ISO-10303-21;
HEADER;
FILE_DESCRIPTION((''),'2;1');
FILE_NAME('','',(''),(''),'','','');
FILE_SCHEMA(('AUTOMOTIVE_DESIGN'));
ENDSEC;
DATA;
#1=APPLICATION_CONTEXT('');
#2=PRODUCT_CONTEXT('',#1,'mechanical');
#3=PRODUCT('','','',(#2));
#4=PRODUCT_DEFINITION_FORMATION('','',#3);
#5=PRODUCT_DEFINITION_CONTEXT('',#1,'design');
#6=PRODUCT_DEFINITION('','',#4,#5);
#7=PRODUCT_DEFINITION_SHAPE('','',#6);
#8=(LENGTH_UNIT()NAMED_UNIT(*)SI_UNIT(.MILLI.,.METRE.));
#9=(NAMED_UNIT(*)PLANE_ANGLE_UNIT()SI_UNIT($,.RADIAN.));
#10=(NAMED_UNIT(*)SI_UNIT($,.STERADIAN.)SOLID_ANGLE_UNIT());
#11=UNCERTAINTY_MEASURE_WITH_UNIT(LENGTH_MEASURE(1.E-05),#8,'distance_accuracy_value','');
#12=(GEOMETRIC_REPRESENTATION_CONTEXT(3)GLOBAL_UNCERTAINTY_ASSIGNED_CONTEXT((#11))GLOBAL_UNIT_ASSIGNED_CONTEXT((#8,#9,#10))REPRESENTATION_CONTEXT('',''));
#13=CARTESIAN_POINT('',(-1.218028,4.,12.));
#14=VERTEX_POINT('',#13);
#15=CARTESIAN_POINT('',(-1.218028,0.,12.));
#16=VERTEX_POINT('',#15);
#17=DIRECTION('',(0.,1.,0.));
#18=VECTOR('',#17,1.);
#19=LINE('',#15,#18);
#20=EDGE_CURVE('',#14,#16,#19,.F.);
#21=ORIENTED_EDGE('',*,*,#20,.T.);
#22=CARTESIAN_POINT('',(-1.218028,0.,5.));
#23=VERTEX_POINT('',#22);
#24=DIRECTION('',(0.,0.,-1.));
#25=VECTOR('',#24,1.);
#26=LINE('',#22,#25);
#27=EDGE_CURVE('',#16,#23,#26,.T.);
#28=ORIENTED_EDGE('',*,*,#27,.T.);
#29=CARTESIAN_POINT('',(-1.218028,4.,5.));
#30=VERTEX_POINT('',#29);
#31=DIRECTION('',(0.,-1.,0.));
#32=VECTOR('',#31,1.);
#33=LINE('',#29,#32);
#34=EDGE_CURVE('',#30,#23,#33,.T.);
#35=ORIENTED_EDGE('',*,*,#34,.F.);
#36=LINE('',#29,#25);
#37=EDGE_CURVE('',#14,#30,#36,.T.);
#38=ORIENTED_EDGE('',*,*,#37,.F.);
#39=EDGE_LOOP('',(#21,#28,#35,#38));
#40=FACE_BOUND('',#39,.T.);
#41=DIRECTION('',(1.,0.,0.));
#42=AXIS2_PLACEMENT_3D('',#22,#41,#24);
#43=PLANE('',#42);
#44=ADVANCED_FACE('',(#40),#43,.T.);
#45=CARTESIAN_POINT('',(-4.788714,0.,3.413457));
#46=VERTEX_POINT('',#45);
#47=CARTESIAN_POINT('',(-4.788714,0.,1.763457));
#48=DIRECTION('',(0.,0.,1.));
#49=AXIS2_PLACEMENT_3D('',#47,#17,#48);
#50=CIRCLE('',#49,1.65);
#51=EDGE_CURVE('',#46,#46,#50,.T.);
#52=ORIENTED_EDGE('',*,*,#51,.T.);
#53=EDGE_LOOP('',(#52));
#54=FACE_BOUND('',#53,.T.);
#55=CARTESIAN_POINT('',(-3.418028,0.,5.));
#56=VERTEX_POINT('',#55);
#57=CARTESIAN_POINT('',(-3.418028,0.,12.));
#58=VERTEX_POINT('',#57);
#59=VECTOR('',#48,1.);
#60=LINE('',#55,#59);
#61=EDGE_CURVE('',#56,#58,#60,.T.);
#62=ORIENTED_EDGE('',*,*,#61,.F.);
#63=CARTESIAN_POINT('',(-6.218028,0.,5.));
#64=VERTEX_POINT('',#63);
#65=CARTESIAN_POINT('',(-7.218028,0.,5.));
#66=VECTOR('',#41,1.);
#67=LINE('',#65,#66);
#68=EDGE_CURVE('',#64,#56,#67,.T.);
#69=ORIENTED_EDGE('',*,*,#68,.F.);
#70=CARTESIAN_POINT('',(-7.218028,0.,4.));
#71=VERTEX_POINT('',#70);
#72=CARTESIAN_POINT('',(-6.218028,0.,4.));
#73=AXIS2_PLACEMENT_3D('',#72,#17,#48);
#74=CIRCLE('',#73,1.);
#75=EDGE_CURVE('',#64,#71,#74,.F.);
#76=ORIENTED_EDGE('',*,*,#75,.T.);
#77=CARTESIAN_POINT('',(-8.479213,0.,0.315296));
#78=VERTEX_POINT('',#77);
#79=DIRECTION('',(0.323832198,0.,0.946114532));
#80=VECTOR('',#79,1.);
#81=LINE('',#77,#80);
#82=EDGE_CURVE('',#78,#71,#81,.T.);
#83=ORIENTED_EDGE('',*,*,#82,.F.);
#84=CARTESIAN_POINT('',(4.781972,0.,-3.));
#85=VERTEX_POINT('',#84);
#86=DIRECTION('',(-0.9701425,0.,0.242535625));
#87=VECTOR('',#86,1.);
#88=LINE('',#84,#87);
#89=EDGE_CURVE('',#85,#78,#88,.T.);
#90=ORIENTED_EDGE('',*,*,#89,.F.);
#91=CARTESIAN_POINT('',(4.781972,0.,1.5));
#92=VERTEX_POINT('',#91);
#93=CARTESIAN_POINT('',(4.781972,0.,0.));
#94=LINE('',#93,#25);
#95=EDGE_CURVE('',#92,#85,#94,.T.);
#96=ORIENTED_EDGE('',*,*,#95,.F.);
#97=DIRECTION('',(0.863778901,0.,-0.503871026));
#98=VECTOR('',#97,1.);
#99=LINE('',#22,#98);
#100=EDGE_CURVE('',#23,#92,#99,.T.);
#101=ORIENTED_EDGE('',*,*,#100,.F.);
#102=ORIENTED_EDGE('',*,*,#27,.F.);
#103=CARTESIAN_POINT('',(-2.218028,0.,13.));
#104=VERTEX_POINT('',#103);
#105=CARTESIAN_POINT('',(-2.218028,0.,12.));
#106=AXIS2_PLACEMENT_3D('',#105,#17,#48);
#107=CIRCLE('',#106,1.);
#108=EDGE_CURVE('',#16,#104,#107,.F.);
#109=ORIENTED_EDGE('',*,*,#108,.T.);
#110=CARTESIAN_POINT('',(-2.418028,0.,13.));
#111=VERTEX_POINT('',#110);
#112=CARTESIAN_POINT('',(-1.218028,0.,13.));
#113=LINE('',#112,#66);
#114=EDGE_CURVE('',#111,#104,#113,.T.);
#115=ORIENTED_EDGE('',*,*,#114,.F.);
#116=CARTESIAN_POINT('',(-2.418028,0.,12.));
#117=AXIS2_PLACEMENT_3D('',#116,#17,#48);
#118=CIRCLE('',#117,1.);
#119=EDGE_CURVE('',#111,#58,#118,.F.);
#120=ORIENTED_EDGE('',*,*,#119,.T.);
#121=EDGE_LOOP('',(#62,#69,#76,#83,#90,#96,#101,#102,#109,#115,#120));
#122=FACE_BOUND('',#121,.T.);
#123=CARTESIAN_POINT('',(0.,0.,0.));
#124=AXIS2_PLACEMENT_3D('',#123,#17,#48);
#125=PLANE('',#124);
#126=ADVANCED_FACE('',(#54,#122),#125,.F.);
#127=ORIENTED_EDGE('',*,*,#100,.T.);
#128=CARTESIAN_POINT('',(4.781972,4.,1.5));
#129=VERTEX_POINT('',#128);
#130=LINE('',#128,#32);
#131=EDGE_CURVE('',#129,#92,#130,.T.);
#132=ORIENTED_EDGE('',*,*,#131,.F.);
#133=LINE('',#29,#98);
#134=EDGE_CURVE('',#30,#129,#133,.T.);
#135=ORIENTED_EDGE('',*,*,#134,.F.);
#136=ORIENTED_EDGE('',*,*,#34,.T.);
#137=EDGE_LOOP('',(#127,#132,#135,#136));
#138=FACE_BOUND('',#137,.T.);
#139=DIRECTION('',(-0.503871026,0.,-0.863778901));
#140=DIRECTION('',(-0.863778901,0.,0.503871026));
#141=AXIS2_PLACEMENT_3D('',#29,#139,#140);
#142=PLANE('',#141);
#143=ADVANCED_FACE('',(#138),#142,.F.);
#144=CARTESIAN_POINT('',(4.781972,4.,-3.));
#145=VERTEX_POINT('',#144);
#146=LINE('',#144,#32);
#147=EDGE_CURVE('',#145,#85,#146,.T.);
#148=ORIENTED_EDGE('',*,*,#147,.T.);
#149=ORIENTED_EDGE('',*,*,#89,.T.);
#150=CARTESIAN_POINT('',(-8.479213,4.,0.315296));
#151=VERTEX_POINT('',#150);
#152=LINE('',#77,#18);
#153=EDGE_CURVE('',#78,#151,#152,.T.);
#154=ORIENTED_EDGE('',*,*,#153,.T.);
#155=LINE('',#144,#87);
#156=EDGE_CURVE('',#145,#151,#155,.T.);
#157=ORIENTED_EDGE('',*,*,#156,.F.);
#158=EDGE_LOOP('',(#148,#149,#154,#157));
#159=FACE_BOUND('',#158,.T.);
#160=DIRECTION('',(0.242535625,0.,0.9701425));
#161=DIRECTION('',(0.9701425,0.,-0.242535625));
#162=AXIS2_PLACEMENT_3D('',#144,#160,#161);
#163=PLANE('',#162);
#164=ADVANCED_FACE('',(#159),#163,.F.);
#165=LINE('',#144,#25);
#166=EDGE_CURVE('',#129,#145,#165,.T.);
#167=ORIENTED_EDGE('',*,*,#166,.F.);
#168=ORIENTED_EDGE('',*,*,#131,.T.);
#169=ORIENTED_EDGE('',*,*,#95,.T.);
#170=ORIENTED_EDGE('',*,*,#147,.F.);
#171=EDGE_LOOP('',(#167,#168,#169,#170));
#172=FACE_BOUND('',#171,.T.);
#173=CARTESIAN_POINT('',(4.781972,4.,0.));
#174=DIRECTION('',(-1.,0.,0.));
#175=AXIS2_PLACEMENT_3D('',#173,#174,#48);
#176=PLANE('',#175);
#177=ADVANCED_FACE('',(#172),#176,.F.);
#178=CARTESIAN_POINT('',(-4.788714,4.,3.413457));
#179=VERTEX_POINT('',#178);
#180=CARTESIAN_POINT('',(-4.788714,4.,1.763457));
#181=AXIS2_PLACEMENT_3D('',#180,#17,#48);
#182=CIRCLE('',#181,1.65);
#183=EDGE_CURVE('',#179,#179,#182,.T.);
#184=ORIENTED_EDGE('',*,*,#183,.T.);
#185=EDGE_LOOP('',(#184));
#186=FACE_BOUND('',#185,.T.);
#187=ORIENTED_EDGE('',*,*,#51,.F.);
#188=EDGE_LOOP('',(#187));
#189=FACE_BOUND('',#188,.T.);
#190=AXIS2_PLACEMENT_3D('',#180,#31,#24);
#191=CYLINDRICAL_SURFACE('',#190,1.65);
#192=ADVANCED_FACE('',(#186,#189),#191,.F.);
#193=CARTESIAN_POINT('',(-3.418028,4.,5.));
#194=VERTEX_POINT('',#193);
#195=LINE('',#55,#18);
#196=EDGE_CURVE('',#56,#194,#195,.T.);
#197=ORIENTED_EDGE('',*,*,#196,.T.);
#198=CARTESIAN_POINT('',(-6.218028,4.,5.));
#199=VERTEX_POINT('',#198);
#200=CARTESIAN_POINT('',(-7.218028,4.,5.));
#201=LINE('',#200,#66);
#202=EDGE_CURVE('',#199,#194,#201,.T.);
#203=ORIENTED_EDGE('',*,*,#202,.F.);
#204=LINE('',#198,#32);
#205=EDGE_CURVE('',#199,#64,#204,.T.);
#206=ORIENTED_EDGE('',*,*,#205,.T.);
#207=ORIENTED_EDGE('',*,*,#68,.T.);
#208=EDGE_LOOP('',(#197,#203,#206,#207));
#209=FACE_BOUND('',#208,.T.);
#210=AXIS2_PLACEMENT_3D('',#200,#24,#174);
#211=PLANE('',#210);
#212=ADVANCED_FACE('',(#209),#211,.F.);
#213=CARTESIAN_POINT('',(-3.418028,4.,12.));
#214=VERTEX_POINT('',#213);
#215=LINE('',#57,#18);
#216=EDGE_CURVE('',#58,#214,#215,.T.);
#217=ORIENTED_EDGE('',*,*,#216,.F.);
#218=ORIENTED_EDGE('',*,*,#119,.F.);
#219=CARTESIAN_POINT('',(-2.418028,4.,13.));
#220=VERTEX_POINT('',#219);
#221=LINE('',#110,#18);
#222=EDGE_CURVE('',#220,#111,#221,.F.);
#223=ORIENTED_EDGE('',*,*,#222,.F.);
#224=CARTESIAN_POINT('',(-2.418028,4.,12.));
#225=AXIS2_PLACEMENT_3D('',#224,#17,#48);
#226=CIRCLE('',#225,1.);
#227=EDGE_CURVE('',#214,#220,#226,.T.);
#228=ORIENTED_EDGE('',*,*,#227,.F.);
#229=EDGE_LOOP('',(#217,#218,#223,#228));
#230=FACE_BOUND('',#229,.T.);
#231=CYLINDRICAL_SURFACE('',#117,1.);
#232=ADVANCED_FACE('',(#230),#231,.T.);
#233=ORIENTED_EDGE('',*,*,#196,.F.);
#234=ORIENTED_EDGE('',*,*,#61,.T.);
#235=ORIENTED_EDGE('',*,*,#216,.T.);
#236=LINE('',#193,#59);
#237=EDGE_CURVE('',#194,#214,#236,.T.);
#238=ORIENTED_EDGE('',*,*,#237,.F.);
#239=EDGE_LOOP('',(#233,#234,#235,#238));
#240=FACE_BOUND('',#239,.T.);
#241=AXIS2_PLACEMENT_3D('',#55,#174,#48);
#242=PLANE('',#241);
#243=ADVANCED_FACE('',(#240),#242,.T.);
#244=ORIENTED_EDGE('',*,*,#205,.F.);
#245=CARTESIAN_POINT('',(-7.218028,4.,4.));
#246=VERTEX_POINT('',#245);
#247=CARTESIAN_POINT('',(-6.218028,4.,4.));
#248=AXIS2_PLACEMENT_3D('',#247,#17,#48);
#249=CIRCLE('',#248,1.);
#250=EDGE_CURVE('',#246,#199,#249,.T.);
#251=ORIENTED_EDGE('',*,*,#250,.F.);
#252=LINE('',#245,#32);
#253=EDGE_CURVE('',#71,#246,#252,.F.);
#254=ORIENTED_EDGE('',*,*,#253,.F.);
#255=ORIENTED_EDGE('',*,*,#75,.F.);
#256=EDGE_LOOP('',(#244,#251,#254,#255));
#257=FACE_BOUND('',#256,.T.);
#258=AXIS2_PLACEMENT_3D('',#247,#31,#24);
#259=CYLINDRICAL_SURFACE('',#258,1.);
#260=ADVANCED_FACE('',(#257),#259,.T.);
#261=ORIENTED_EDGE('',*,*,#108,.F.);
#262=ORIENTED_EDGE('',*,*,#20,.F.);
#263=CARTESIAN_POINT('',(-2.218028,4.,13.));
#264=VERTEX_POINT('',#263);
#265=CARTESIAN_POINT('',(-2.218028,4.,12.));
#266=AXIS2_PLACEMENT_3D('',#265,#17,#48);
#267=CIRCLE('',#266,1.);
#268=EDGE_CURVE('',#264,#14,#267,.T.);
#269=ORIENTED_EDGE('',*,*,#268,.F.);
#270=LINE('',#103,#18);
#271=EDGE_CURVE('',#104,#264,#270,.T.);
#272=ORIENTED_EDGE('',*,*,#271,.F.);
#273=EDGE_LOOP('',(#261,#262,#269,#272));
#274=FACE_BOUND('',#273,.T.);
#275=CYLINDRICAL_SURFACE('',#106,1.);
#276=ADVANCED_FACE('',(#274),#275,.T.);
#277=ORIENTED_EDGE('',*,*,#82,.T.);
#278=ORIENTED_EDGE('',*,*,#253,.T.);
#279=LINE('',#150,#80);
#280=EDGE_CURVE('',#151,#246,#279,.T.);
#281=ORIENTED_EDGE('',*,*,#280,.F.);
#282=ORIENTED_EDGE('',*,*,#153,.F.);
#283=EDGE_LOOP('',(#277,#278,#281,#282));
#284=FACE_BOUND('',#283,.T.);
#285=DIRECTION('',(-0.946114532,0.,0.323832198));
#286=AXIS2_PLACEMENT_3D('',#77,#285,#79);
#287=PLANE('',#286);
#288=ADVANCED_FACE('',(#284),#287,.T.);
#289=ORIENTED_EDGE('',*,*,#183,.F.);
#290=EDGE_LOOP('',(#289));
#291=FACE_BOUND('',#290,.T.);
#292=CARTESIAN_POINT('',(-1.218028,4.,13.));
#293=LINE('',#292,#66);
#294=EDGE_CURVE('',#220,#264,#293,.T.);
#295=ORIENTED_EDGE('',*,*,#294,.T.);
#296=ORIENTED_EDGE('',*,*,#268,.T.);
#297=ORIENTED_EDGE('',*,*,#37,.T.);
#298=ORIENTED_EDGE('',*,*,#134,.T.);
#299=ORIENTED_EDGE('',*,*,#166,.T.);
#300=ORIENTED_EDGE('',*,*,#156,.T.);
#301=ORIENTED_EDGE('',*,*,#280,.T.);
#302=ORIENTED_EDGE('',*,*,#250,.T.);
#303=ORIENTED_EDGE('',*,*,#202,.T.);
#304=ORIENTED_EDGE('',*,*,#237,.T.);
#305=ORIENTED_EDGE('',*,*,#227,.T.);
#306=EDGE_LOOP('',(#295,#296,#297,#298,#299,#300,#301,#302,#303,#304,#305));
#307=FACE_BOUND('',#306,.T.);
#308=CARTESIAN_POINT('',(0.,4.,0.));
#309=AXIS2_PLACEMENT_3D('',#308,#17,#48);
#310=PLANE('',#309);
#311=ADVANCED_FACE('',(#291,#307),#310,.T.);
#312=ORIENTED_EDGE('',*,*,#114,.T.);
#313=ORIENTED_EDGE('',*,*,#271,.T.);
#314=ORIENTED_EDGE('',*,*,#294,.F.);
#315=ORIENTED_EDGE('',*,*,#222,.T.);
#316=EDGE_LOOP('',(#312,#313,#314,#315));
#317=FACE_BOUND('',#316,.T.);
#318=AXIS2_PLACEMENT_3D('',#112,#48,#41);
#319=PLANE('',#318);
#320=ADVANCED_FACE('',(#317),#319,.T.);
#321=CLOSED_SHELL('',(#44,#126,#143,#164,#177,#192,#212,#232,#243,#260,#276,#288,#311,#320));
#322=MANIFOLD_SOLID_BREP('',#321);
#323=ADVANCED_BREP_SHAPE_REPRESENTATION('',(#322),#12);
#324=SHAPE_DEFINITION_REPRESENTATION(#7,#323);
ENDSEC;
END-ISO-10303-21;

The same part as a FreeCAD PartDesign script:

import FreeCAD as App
import Part
import Sketcher
Q = App.Units.Quantity


def edges_at(feature, points):
    """Names of the edges that pass closest to the given points."""
    edges = feature.Shape.Edges
    near = lambda p: min(range(len(edges)), key=lambda i: edges[i].distToShape(Part.Vertex(*p))[0])
    return sorted({f"Edge{near(p) + 1}" for p in points})

doc = App.newDocument("Part")
body = doc.addObject("PartDesign::Body", "Body")

# Sketch on XZ plane
sketch1 = body.newObject("Sketcher::SketchObject", "Sketch")
sketch1.AttachmentSupport = (doc.getObject("XZ_Plane"), [""])
sketch1.MapMode = "FlatFace"
sketch1.addGeometry(Part.LineSegment(App.Vector(4.8, -3, 0), App.Vector(-7.2, 0, 0)), False)
sketch1.addGeometry(Part.LineSegment(App.Vector(-7.2, 0, 0), App.Vector(-7.2, 5, 0)), False)
sketch1.addGeometry(Part.LineSegment(App.Vector(-7.2, 5, 0), App.Vector(-1.2, 5, 0)), False)
sketch1.addGeometry(Part.LineSegment(App.Vector(-1.2, 5, 0), App.Vector(4.8, 1.5, 0)), False)
sketch1.addGeometry(Part.LineSegment(App.Vector(4.8, 1.5, 0), App.Vector(4.8, -3, 0)), False)
sketch1.addGeometry(Part.Circle(App.Vector(-4.8, 1.8, 0), App.Vector(0, 0, 1), 1.6), False)
sketch1.addConstraint(Sketcher.Constraint("Coincident", 0, 2, 1, 1))
sketch1.addConstraint(Sketcher.Constraint("Coincident", 1, 2, 2, 1))
sketch1.addConstraint(Sketcher.Constraint("Coincident", 2, 2, 3, 1))
sketch1.addConstraint(Sketcher.Constraint("Coincident", 3, 2, 4, 1))
sketch1.addConstraint(Sketcher.Constraint("Coincident", 4, 2, 0, 1))
sketch1.addConstraint(Sketcher.Constraint("Vertical", 1))
sketch1.addConstraint(Sketcher.Constraint("Horizontal", 2))
sketch1.addConstraint(Sketcher.Constraint("Vertical", 4))
sketch1.addConstraint(Sketcher.Constraint("PointOnObject", 0, 2, -1))
sketch1.addConstraint(Sketcher.Constraint("Diameter", 5, Q("3.3 mm")))
sketch1.addConstraint(Sketcher.Constraint("DistanceX", 2, 1, 2, 2, Q("6 mm")))
sketch1.addConstraint(Sketcher.Constraint("DistanceY", 1, 1, 1, 2, Q("5 mm")))
sketch1.addConstraint(Sketcher.Constraint("DistanceY", 4, 2, 4, 1, Q("4.5 mm")))
sketch1.addConstraint(Sketcher.Constraint("DistanceY", 4, 2, -1, 1, Q("3 mm")))
sketch1.addConstraint(Sketcher.Constraint("DistanceX", 2, 2, 3, 2, Q("6 mm")))
sketch1.addConstraint(Sketcher.Constraint("DistanceX", 5, 3, -1, 1, Q("4.788714 mm")))
sketch1.addConstraint(Sketcher.Constraint("DistanceY", -1, 1, 5, 3, Q("1.763457 mm")))
sketch1.addConstraint(Sketcher.Constraint("DistanceX", 0, 2, -1, 1, Q("7.218028 mm")))
pad1 = body.newObject("PartDesign::Pad", "Pad")
pad1.Profile = sketch1
pad1.Length = 4
pad1.Reversed = True

# Sketch on XZ plane
sketch2 = body.newObject("Sketcher::SketchObject", "Sketch001")
sketch2.AttachmentSupport = (doc.getObject("XZ_Plane"), [""])
sketch2.MapMode = "FlatFace"
sketch2.AttachmentOffset = App.Placement(App.Vector(0, 0, -4), App.Rotation())
sketch2.addGeometry(Part.LineSegment(App.Vector(-3.4, 5, 0), App.Vector(-3.4, 13, 0)), False)
sketch2.addGeometry(Part.LineSegment(App.Vector(-3.4, 13, 0), App.Vector(-1.2, 13, 0)), False)
sketch2.addGeometry(Part.LineSegment(App.Vector(-1.2, 13, 0), App.Vector(-1.2, 5, 0)), False)
sketch2.addGeometry(Part.LineSegment(App.Vector(-1.2, 5, 0), App.Vector(-3.4, 5, 0)), False)
sketch2.addConstraint(Sketcher.Constraint("Coincident", 0, 2, 1, 1))
sketch2.addConstraint(Sketcher.Constraint("Coincident", 1, 2, 2, 1))
sketch2.addConstraint(Sketcher.Constraint("Coincident", 2, 2, 3, 1))
sketch2.addConstraint(Sketcher.Constraint("Coincident", 3, 2, 0, 1))
sketch2.addConstraint(Sketcher.Constraint("Vertical", 0))
sketch2.addConstraint(Sketcher.Constraint("Horizontal", 1))
sketch2.addConstraint(Sketcher.Constraint("Vertical", 2))
sketch2.addConstraint(Sketcher.Constraint("Horizontal", 3))
sketch2.addConstraint(Sketcher.Constraint("DistanceY", 0, 1, 0, 2, Q("8 mm")))
sketch2.addConstraint(Sketcher.Constraint("DistanceX", 1, 1, 1, 2, Q("2.2 mm")))
sketch2.addConstraint(Sketcher.Constraint("DistanceY", -1, 1, 0, 2, Q("13 mm")))
sketch2.addConstraint(Sketcher.Constraint("DistanceX", 0, 2, -1, 1, Q("3.418028 mm")))
pad2 = body.newObject("PartDesign::Pad", "Pad001")
pad2.Profile = sketch2
pad2.Length = 4
doc.recompute()

fillet = body.newObject("PartDesign::Fillet", "Fillet")
fillet.Base = (pad2, edges_at(pad2, [(-1.218, 2, 13), (-3.418, 2, 13)]))
fillet.Radius = 1
doc.recompute()

fillet2 = body.newObject("PartDesign::Fillet", "Fillet001")
fillet2.Base = (fillet, edges_at(fillet, [(-7.218, 2, 5)]))
fillet2.Radius = 1

# Sketch on XZ plane
sketch3 = body.newObject("Sketcher::SketchObject", "Sketch002")
sketch3.AttachmentSupport = (doc.getObject("XZ_Plane"), [""])
sketch3.MapMode = "FlatFace"
sketch3.AttachmentOffset = App.Placement(App.Vector(0, 0, -4), App.Rotation())
sketch3.addGeometry(Part.LineSegment(App.Vector(-7.2, 0, 0), App.Vector(-8.5, 0.3, 0)), False)
sketch3.addGeometry(Part.LineSegment(App.Vector(-8.5, 0.3, 0), App.Vector(-7.2, 4, 0)), False)
sketch3.addGeometry(Part.LineSegment(App.Vector(-7.2, 4, 0), App.Vector(-7.2, 0, 0)), False)
sketch3.addConstraint(Sketcher.Constraint("Coincident", 0, 2, 1, 1))
sketch3.addConstraint(Sketcher.Constraint("Coincident", 1, 2, 2, 1))
sketch3.addConstraint(Sketcher.Constraint("Coincident", 2, 2, 0, 1))
sketch3.addConstraint(Sketcher.Constraint("Vertical", 2))
sketch3.addConstraint(Sketcher.Constraint("PointOnObject", 2, 2, -1))
sketch3.addConstraint(Sketcher.Constraint("DistanceY", 2, 2, 2, 1, Q("4 mm")))
sketch3.addConstraint(Sketcher.Constraint("Distance", 0, Q("1.3 mm")))
sketch3.addConstraint(Sketcher.Constraint("Distance", 1, Q("3.894564 mm")))
sketch3.addConstraint(Sketcher.Constraint("DistanceX", 0, 2, -1, 1, Q("8.479213 mm")))
pad3 = body.newObject("PartDesign::Pad", "Pad002")
pad3.Profile = sketch3
pad3.Length = 4

doc.recompute()
